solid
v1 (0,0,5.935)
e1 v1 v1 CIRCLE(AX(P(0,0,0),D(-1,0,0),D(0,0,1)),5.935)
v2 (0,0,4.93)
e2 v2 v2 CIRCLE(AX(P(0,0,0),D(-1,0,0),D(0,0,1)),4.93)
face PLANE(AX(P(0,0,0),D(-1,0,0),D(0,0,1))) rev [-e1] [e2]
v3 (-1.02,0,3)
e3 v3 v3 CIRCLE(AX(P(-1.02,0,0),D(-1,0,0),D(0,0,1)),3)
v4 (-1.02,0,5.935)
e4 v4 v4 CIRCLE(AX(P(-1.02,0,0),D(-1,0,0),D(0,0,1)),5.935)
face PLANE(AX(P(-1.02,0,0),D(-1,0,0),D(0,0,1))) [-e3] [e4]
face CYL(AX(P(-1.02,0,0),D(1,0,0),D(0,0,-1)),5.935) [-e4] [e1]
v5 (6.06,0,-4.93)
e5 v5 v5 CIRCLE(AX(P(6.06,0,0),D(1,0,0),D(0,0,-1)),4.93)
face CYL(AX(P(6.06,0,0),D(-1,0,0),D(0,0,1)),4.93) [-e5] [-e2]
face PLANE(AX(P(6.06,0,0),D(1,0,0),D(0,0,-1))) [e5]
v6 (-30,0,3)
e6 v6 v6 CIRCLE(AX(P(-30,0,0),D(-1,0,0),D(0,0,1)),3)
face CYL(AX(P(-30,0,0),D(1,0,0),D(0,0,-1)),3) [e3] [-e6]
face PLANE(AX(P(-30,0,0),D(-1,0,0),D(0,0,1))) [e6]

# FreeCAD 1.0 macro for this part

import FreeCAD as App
import Part
import Sketcher
from FreeCAD import Vector

doc = App.newDocument("Part")
params = doc.addObject("Spreadsheet::Sheet", "Params")
for row, (alias, value) in enumerate([
    ("sketch1_diameter", "9.86 mm"),
    ("pad1_length", "6.06 mm"),
    ("sketch2_diameter", "6 mm"),
    ("pad2_length", "30 mm"),
    ("sketch3_diameter", "11.87 mm"),
    ("pad3_length", "1.02 mm"),
], start=1):
    params.set(f"A{row}", alias)
    params.set(f"B{row}", "=" + value)
    params.setAlias(f"B{row}", alias)

body = doc.addObject("PartDesign::Body", "Body")

# Sketch on YZ plane
sketch1 = body.newObject("Sketcher::SketchObject", "Sketch")
sketch1.AttachmentSupport = (doc.getObject("YZ_Plane"), [""])
sketch1.MapMode = "FlatFace"
sketch1.addGeometry(Part.Circle(Vector(0, 0, 0), Vector(0, 0, 1), 4.9), False)
sketch1.addConstraint([
    Sketcher.Constraint("Coincident", 0, 3, -1, 1),
    Sketcher.Constraint("Diameter", 0, 9.86),
])
sketch1.setExpression("Constraints[1]", "Params.sketch1_diameter")
pad1 = body.newObject("PartDesign::Pad", "Pad")
pad1.Profile = sketch1
pad1.setExpression("Length", "Params.pad1_length")

# Sketch on YZ plane
sketch2 = body.newObject("Sketcher::SketchObject", "Sketch001")
sketch2.AttachmentSupport = (doc.getObject("YZ_Plane"), [""])
sketch2.MapMode = "FlatFace"
sketch2.addGeometry(Part.Circle(Vector(0, 0, 0), Vector(0, 0, 1), 3), False)
sketch2.addConstraint([
    Sketcher.Constraint("Coincident", 0, 3, -1, 1),
    Sketcher.Constraint("Diameter", 0, 6.0),
])
sketch2.setExpression("Constraints[1]", "Params.sketch2_diameter")
pad2 = body.newObject("PartDesign::Pad", "Pad001")
pad2.Profile = sketch2
pad2.setExpression("Length", "Params.pad2_length")
pad2.Reversed = True

# Sketch on YZ plane
sketch3 = body.newObject("Sketcher::SketchObject", "Sketch002")
sketch3.AttachmentSupport = (doc.getObject("YZ_Plane"), [""])
sketch3.MapMode = "FlatFace"
sketch3.addGeometry(Part.Circle(Vector(0, 0, 0), Vector(0, 0, 1), 6), False)
sketch3.addConstraint([
    Sketcher.Constraint("Coincident", 0, 3, -1, 1),
    Sketcher.Constraint("Diameter", 0, 11.87),
])
sketch3.setExpression("Constraints[1]", "Params.sketch3_diameter")
pad3 = body.newObject("PartDesign::Pad", "Pad002")
pad3.Profile = sketch3
pad3.setExpression("Length", "Params.pad3_length")
pad3.Reversed = True

doc.recompute()
